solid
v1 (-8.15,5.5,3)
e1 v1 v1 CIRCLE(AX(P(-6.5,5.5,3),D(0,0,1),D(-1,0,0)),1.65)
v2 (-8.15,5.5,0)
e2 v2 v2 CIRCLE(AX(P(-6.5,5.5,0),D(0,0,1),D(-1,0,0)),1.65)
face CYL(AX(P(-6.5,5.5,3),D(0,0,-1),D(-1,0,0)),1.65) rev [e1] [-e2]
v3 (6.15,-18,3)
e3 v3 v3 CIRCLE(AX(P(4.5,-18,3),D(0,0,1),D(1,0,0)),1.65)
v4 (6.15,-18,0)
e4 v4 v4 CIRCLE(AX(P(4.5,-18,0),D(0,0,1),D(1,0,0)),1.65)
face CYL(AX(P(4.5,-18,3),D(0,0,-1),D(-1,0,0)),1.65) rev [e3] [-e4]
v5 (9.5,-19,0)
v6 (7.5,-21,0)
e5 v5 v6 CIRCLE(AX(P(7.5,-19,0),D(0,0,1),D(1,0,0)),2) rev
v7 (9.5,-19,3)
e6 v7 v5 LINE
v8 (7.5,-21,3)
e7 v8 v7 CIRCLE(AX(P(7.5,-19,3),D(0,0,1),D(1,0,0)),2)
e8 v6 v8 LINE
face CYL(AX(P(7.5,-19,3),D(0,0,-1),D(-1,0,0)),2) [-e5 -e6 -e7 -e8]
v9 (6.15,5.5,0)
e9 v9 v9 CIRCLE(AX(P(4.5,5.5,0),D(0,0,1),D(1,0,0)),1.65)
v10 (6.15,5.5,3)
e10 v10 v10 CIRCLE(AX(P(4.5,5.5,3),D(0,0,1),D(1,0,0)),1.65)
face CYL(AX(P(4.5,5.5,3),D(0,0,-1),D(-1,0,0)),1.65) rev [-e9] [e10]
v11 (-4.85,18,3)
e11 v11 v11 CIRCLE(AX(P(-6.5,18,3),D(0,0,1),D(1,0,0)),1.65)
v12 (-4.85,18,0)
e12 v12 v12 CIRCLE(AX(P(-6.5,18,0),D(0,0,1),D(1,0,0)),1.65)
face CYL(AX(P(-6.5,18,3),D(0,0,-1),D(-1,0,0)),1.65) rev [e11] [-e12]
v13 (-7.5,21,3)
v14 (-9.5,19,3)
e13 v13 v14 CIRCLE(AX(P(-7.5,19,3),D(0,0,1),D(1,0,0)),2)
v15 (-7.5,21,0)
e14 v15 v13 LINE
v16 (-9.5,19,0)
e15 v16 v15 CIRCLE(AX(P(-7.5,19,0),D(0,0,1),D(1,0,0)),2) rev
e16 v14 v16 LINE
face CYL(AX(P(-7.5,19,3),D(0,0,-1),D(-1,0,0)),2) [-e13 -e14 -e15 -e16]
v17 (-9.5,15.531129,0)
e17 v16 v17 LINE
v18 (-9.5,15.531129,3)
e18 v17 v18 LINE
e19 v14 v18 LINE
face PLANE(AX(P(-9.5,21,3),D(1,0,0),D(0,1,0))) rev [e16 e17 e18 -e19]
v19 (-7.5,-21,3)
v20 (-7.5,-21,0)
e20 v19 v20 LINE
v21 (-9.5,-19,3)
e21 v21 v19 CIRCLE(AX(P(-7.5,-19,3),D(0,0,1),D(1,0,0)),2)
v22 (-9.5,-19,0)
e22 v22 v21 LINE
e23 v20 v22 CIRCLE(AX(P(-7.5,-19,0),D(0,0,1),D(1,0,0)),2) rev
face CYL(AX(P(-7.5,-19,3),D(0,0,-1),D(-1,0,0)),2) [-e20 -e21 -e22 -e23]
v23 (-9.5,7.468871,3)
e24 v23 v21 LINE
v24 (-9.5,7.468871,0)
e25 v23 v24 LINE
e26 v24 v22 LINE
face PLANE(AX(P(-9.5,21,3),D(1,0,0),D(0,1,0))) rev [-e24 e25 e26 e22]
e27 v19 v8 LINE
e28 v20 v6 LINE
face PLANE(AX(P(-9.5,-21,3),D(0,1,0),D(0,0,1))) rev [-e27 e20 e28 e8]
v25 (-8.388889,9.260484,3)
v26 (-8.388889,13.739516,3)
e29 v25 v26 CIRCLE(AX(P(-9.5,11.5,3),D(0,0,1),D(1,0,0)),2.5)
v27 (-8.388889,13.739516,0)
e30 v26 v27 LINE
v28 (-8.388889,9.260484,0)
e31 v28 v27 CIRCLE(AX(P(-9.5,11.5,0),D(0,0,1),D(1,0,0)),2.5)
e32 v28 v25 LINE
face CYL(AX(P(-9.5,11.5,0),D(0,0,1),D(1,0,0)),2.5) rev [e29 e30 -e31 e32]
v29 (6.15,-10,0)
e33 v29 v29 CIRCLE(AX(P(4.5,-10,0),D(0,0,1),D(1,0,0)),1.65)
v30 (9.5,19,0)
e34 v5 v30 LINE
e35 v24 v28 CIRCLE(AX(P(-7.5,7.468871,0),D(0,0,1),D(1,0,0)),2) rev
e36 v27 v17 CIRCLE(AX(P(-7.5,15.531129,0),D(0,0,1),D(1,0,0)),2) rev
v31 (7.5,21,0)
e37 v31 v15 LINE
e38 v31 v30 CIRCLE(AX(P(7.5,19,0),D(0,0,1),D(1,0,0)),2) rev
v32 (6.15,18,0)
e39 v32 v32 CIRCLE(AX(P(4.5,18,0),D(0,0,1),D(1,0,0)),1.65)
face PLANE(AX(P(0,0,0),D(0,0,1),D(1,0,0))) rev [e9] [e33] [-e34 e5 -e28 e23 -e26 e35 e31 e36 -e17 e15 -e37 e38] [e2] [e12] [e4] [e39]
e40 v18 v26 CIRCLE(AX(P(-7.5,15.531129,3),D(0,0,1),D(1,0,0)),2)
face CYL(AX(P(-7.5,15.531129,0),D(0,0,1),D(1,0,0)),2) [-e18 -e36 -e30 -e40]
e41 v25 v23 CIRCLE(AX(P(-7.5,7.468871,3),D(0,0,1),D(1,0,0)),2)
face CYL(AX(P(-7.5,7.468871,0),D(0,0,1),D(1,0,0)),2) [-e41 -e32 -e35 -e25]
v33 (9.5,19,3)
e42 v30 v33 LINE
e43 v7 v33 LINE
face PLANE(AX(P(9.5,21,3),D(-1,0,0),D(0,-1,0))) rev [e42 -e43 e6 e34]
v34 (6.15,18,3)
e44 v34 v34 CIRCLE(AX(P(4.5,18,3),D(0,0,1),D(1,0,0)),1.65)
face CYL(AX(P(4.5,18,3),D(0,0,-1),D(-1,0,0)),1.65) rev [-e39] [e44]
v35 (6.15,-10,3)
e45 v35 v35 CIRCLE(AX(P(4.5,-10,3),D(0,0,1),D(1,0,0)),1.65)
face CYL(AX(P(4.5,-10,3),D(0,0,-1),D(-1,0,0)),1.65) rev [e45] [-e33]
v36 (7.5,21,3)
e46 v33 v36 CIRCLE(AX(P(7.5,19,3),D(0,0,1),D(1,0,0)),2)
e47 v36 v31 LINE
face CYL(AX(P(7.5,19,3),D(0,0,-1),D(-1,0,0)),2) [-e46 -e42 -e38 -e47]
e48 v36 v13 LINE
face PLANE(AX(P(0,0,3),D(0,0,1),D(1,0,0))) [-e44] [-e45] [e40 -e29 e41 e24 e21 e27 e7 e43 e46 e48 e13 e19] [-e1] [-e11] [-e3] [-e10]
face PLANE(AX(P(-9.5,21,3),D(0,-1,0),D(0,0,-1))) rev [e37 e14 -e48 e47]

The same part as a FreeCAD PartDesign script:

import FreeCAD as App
import Part
import Sketcher
from FreeCAD import Vector
Q = App.Units.Quantity


def edges_at(feature, points):
    """Names of the edges that pass closest to the given points."""
    edges = feature.Shape.Edges
    near = lambda p: min(range(len(edges)), key=lambda i: edges[i].distToShape(Part.Vertex(*p))[0])
    return sorted({f"Edge{near(p) + 1}" for p in points})


def add_polygon(sketch, points):
    """Adds a closed chain of lines whose ends are joined by coincident constraints."""
    first, n = sketch.GeometryCount, len(points)
    for a, b in zip(points, points[1:] + points[:1]):
        sketch.addGeometry(Part.LineSegment(App.Vector(*a, 0), App.Vector(*b, 0)), False)
    for i in range(n):
        sketch.addConstraint(Sketcher.Constraint("Coincident", first + i, 2, first + (i + 1) % n, 1))

doc = App.newDocument("Part")
body = doc.addObject("PartDesign::Body", "Body")

sketch1 = body.newObject("Sketcher::SketchObject", "Sketch")
sketch1.AttachmentSupport = (doc.getObject("XY_Plane"), [""])
sketch1.MapMode = "FlatFace"
add_polygon(sketch1, [(-9.5, 21), (-9.5, -21), (9.5, -21), (9.5, 21)])
sketch1.addGeometry(Part.Circle(Vector(4.5, -18, 0), Vector(0, 0, 1), 1.65), False)
sketch1.addGeometry(Part.Circle(Vector(4.5, -10, 0), Vector(0, 0, 1), 1.65), False)
sketch1.addGeometry(Part.Circle(Vector(-6.5, 5.5, 0), Vector(0, 0, 1), 1.65), False)
sketch1.addGeometry(Part.Circle(Vector(-6.5, 18, 0), Vector(0, 0, 1), 1.65), False)
sketch1.addGeometry(Part.Circle(Vector(4.5, 5.5, 0), Vector(0, 0, 1), 1.65), False)
sketch1.addGeometry(Part.Circle(Vector(4.5, 18, 0), Vector(0, 0, 1), 1.65), False)
sketch1.addConstraint([
    Sketcher.Constraint("Vertical", 0),
    Sketcher.Constraint("Horizontal", 1),
    Sketcher.Constraint("Vertical", 2),
    Sketcher.Constraint("Horizontal", 3),
    Sketcher.Constraint("Equal", 4, 5),
    Sketcher.Constraint("Equal", 5, 6),
    Sketcher.Constraint("Equal", 6, 7),
    Sketcher.Constraint("Equal", 7, 8),
    Sketcher.Constraint("Equal", 8, 9),
    Sketcher.Constraint("Symmetric", 0, 2, 2, 2, -1, 1),
    Sketcher.Constraint("Symmetric", 4, 3, 9, 3, -1),
    Sketcher.Constraint("Horizontal", 6, 3, 8, 3),
    Sketcher.Constraint("Horizontal", 7, 3, 9, 3),
    Sketcher.Constraint("Vertical", 4, 3, 5, 3),
    Sketcher.Constraint("Vertical", 6, 3, 7, 3),
    Sketcher.Constraint("Vertical", 5, 3, 8, 3),
    Sketcher.Constraint("Diameter", 4, Q("3.3 mm")),
    Sketcher.Constraint("DistanceX", 1, 1, 1, 2, Q("19 mm")),
    Sketcher.Constraint("DistanceY", 0, 2, 0, 1, Q("42 mm")),
    Sketcher.Constraint("DistanceY", 4, 3, -1, 1, Q("18 mm")),
    Sketcher.Constraint("DistanceY", 5, 3, -1, 1, Q("10 mm")),
    Sketcher.Constraint("DistanceX", 6, 3, 5, 3, Q("11 mm")),
    Sketcher.Constraint("DistanceX", 0, 2, 4, 3, Q("14 mm")),
    Sketcher.Constraint("DistanceY", -1, 1, 6, 3, Q("5.5 mm")),
])
pad1 = body.newObject("PartDesign::Pad", "Pad")
pad1.Profile = sketch1
pad1.Length = 3

sketch2 = body.newObject("Sketcher::SketchObject", "Sketch001")
sketch2.AttachmentSupport = (doc.getObject("XY_Plane"), [""])
sketch2.MapMode = "FlatFace"
sketch2.AttachmentOffset = App.Placement(Vector(0, 0, 3), App.Rotation())
sketch2.addGeometry(Part.Circle(Vector(-9.5, 11.5, 0), Vector(0, 0, 1), 2.5), False)
sketch2.addConstraint([
    Sketcher.Constraint("Diameter", 0, Q("5 mm")),
    Sketcher.Constraint("DistanceX", 0, 3, -1, 1, Q("9.5 mm")),
    Sketcher.Constraint("DistanceY", -1, 1, 0, 3, Q("11.5 mm")),
])
pocket1 = body.newObject("PartDesign::Pocket", "Pocket")
pocket1.Profile = sketch2
pocket1.Type = "ThroughAll"
doc.recompute()

fillet = body.newObject("PartDesign::Fillet", "Fillet")
fillet.Base = (pocket1, edges_at(pocket1, [(-9.5, 9, 1.5), (-9.5, 14, 1.5)]))
fillet.Radius = 2
doc.recompute()

fillet2 = body.newObject("PartDesign::Fillet", "Fillet001")
fillet2.Base = (fillet, edges_at(fillet, [
    (9.5, -21, 1.5),
    (-9.5, -21, 1.5),
    (-9.5, 21, 1.5),
    (9.5, 21, 1.5),
]))
fillet2.Radius = 2

doc.recompute()
